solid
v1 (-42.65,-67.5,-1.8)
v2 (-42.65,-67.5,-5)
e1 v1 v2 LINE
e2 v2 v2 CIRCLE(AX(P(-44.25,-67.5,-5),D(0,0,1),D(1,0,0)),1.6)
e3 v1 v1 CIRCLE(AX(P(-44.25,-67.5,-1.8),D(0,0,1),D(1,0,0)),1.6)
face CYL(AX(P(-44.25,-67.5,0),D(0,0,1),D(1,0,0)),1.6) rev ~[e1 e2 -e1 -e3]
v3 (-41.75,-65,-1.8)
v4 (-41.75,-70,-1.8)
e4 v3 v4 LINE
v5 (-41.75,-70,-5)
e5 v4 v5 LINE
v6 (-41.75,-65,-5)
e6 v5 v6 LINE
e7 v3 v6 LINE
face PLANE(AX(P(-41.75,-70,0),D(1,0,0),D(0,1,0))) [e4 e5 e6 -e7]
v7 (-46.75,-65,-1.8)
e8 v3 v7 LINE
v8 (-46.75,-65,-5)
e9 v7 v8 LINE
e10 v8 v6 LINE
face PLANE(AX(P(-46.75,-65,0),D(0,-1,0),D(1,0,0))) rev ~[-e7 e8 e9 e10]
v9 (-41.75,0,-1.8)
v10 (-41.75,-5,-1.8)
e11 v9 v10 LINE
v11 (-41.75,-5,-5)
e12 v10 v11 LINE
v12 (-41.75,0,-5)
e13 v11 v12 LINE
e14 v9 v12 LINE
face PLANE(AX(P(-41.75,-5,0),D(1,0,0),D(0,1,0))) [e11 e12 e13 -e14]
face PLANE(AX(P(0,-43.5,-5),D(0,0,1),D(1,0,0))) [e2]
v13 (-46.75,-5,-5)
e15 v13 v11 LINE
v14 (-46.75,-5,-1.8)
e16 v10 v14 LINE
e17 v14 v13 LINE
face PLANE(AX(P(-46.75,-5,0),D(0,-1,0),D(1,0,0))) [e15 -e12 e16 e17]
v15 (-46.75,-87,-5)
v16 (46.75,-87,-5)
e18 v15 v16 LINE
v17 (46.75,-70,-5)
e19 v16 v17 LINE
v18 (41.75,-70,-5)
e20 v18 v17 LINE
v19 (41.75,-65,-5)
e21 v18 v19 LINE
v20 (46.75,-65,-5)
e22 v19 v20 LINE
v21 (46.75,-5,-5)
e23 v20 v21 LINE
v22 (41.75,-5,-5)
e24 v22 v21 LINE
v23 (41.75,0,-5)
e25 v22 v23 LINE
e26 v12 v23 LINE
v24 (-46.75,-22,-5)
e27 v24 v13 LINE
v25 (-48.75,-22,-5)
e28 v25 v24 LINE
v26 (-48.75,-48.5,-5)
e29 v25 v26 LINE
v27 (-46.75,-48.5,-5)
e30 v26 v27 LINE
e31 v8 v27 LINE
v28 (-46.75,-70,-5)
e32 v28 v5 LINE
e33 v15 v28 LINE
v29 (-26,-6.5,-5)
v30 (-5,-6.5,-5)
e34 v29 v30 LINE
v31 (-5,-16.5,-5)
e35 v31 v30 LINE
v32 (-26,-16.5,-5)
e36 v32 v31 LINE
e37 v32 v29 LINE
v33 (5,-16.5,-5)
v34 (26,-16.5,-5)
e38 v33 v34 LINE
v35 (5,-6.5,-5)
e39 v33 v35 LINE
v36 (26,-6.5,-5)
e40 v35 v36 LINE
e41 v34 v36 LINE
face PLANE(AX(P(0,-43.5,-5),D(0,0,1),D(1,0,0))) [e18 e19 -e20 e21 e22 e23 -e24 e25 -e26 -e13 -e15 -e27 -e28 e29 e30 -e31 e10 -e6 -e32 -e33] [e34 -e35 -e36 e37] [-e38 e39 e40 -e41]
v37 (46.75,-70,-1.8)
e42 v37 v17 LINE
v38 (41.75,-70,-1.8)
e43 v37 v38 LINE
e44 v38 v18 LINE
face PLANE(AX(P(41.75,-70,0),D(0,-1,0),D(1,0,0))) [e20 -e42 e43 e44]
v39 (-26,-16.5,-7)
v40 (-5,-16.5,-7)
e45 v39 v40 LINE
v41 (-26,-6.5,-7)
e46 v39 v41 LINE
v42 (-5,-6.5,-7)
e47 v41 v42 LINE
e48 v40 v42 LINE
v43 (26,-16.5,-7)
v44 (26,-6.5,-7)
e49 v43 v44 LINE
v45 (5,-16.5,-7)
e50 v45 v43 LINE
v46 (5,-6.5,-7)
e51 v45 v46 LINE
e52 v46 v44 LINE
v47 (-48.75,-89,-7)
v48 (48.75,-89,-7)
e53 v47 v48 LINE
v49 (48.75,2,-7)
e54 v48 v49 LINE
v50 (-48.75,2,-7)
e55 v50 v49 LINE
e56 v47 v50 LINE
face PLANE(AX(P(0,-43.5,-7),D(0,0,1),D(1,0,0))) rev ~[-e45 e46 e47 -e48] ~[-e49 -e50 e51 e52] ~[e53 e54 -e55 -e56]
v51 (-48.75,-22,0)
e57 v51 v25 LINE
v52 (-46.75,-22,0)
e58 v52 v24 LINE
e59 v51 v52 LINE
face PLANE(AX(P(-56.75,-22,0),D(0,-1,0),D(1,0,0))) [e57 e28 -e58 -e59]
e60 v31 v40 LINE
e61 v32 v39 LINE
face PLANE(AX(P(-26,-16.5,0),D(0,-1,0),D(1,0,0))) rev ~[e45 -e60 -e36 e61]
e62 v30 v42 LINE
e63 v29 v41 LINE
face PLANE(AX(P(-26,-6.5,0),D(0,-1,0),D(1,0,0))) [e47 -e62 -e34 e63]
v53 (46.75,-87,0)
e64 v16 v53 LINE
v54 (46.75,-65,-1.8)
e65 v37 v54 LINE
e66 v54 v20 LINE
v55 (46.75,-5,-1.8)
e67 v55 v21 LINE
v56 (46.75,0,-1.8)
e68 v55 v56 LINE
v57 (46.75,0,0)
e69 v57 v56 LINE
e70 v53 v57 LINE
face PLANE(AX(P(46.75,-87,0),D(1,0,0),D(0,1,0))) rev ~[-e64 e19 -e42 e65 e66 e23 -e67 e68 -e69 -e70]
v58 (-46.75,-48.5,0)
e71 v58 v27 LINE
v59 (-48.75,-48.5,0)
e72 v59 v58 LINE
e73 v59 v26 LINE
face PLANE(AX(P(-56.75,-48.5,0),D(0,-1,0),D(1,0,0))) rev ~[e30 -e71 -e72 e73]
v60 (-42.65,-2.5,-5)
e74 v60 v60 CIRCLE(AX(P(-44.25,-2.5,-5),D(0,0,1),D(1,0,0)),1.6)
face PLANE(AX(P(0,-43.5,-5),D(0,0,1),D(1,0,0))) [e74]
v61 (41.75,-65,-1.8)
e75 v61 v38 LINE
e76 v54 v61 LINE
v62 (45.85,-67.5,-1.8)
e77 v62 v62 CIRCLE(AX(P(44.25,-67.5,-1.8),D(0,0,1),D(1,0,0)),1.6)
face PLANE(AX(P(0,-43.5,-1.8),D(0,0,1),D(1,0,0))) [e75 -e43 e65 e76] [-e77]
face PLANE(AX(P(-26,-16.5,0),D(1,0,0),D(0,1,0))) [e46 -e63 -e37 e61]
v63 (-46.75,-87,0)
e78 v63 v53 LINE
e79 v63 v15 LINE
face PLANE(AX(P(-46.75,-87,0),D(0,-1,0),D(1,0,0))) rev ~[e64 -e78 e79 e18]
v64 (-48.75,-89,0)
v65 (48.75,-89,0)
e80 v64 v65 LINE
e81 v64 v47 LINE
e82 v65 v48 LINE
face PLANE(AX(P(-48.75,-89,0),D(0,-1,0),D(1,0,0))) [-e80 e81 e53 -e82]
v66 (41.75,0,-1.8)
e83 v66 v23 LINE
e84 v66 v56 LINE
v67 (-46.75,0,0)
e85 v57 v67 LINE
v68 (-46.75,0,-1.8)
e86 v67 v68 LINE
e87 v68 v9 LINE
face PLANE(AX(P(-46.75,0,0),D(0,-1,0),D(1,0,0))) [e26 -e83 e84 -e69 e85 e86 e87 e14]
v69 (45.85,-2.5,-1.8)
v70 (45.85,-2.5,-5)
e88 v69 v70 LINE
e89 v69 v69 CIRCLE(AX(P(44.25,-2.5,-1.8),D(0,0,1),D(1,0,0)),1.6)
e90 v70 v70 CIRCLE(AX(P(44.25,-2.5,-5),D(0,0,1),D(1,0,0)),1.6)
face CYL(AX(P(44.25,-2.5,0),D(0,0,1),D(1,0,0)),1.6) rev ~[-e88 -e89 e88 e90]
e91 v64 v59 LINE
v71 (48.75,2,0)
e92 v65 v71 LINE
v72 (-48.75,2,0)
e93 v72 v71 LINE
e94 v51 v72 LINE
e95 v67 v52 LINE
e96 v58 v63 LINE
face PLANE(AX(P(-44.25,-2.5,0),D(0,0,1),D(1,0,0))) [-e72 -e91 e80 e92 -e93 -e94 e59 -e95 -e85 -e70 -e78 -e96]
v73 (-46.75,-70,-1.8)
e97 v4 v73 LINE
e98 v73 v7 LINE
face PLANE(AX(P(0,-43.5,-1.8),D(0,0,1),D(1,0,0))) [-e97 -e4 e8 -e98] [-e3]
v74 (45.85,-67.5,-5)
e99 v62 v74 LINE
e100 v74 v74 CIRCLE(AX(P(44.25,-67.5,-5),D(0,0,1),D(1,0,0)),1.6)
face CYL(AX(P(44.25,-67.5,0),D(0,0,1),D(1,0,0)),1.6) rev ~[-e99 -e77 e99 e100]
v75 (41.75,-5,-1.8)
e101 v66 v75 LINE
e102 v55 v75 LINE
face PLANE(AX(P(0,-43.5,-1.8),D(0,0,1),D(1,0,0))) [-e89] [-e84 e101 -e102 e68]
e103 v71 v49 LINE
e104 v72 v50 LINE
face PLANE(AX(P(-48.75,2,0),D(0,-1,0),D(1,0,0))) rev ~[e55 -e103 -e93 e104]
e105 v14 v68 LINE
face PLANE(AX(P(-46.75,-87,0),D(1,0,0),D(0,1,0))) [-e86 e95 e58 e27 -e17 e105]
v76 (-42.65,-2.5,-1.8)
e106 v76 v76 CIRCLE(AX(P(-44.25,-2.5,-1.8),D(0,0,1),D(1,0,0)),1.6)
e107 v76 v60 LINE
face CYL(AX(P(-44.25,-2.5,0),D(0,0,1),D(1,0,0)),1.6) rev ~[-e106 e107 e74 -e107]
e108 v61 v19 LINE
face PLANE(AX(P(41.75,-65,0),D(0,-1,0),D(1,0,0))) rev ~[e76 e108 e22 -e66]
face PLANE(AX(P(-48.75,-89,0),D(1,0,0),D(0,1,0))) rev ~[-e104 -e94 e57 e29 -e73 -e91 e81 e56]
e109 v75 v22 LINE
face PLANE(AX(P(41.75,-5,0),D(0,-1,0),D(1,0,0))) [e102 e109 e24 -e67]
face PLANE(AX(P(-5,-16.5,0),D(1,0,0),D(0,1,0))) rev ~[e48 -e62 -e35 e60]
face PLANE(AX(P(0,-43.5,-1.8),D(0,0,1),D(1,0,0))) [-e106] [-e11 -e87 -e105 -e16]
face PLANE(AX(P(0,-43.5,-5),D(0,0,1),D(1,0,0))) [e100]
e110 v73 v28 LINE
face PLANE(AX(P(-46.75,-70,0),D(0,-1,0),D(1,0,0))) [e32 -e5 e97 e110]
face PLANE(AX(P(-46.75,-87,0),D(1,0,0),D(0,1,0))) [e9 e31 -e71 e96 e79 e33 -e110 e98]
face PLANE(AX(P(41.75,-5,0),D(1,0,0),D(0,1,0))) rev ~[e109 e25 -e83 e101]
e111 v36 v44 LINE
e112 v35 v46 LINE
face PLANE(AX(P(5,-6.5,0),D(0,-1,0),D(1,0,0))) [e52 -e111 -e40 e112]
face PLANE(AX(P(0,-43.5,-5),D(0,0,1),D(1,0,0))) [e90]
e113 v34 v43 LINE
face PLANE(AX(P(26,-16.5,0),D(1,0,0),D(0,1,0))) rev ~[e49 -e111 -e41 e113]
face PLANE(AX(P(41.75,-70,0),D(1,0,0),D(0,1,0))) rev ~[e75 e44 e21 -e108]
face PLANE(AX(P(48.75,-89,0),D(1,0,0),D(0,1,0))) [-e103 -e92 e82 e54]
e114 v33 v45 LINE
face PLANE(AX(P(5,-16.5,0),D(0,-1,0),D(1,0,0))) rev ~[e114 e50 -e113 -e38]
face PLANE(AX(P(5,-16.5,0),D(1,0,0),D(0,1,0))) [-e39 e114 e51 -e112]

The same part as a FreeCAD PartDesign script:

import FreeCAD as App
import Part
import Sketcher

V = App.Vector
Q = App.Units.Quantity

doc = App.newDocument("Part")
body = doc.addObject("PartDesign::Body", "Body")

# Sketch on XY plane
sketch1 = body.newObject("Sketcher::SketchObject", "Sketch")
sketch1.AttachmentSupport = (doc.getObject("XY_Plane"), [""])
sketch1.MapMode = "FlatFace"
sketch1.addGeometry(Part.LineSegment(V(-49, 2, 0), V(-49, -89, 0)), False)
sketch1.addGeometry(Part.LineSegment(V(-49, -89, 0), V(49, -89, 0)), False)
sketch1.addGeometry(Part.LineSegment(V(49, -89, 0), V(49, 2, 0)), False)
sketch1.addGeometry(Part.LineSegment(V(49, 2, 0), V(-49, 2, 0)), False)
sketch1.addConstraint(Sketcher.Constraint("Coincident", 0, 2, 1, 1))
sketch1.addConstraint(Sketcher.Constraint("Coincident", 1, 2, 2, 1))
sketch1.addConstraint(Sketcher.Constraint("Coincident", 2, 2, 3, 1))
sketch1.addConstraint(Sketcher.Constraint("Coincident", 3, 2, 0, 1))
sketch1.addConstraint(Sketcher.Constraint("Vertical", 0))
sketch1.addConstraint(Sketcher.Constraint("Horizontal", 1))
sketch1.addConstraint(Sketcher.Constraint("Vertical", 2))
sketch1.addConstraint(Sketcher.Constraint("Horizontal", 3))
sketch1.addConstraint(Sketcher.Constraint("DistanceY", 0, 2, 0, 1, Q("91 mm")))
sketch1.addConstraint(Sketcher.Constraint("DistanceX", 1, 1, 1, 2, Q("97.5 mm")))
sketch1.addConstraint(Sketcher.Constraint("DistanceY", 0, 2, -1, 1, Q("89 mm")))
sketch1.addConstraint(Sketcher.Constraint("DistanceX", 0, 2, -1, 1, Q("48.75 mm")))
pad1 = body.newObject("PartDesign::Pad", "Pad")
pad1.Profile = sketch1
pad1.Length = 7
pad1.Reversed = True

# Sketch on XY plane
sketch2 = body.newObject("Sketcher::SketchObject", "Sketch001")
sketch2.AttachmentSupport = (doc.getObject("XY_Plane"), [""])
sketch2.MapMode = "FlatFace"
sketch2.addGeometry(Part.LineSegment(V(-47, 0, 0), V(-47, -87, 0)), False)
sketch2.addGeometry(Part.LineSegment(V(-47, -87, 0), V(47, -87, 0)), False)
sketch2.addGeometry(Part.LineSegment(V(47, -87, 0), V(47, 0, 0)), False)
sketch2.addGeometry(Part.LineSegment(V(47, 0, 0), V(-47, 0, 0)), False)
sketch2.addConstraint(Sketcher.Constraint("Coincident", 0, 2, 1, 1))
sketch2.addConstraint(Sketcher.Constraint("Coincident", 1, 2, 2, 1))
sketch2.addConstraint(Sketcher.Constraint("Coincident", 2, 2, 3, 1))
sketch2.addConstraint(Sketcher.Constraint("Coincident", 3, 2, 0, 1))
sketch2.addConstraint(Sketcher.Constraint("Vertical", 0))
sketch2.addConstraint(Sketcher.Constraint("Horizontal", 1))
sketch2.addConstraint(Sketcher.Constraint("Vertical", 2))
sketch2.addConstraint(Sketcher.Constraint("Horizontal", 3))
sketch2.addConstraint(Sketcher.Constraint("Symmetric", 2, 2, 3, 2, -1, 1))
sketch2.addConstraint(Sketcher.Constraint("DistanceY", 0, 2, 0, 1, Q("87 mm")))
sketch2.addConstraint(Sketcher.Constraint("DistanceX", 1, 1, 1, 2, Q("93.5 mm")))
pocket1 = body.newObject("PartDesign::Pocket", "Pocket")
pocket1.Profile = sketch2
pocket1.Length = 5

# Sketch on XY plane
sketch3 = body.newObject("Sketcher::SketchObject", "Sketch002")
sketch3.AttachmentSupport = (doc.getObject("XY_Plane"), [""])
sketch3.MapMode = "FlatFace"
sketch3.addGeometry(Part.LineSegment(V(-46.8, 0, 0), V(-46.8, -5, 0)), False)
sketch3.addGeometry(Part.LineSegment(V(-46.8, -5, 0), V(-41.8, -5, 0)), False)
sketch3.addGeometry(Part.LineSegment(V(-41.8, -5, 0), V(-41.8, 0, 0)), False)
sketch3.addGeometry(Part.LineSegment(V(-41.8, 0, 0), V(-46.8, 0, 0)), False)
sketch3.addGeometry(Part.Circle(V(-44.2, -2.5, 0), V(0, 0, 1), 1.6), False)
sketch3.addGeometry(Part.LineSegment(V(-46.8, -65, 0), V(-46.8, -70, 0)), False)
sketch3.addGeometry(Part.LineSegment(V(-46.8, -70, 0), V(-41.8, -70, 0)), False)
sketch3.addGeometry(Part.LineSegment(V(-41.8, -70, 0), V(-41.8, -65, 0)), False)
sketch3.addGeometry(Part.LineSegment(V(-41.8, -65, 0), V(-46.8, -65, 0)), False)
sketch3.addGeometry(Part.Circle(V(-44.2, -67.5, 0), V(0, 0, 1), 1.6), False)
sketch3.addGeometry(Part.LineSegment(V(41.8, -65, 0), V(41.8, -70, 0)), False)
sketch3.addGeometry(Part.LineSegment(V(41.8, -70, 0), V(46.8, -70, 0)), False)
sketch3.addGeometry(Part.LineSegment(V(46.8, -70, 0), V(46.8, -65, 0)), False)
sketch3.addGeometry(Part.LineSegment(V(46.8, -65, 0), V(41.8, -65, 0)), False)
sketch3.addGeometry(Part.Circle(V(44.2, -67.5, 0), V(0, 0, 1), 1.6), False)
sketch3.addGeometry(Part.LineSegment(V(41.8, 0, 0), V(41.8, -5, 0)), False)
sketch3.addGeometry(Part.LineSegment(V(41.8, -5, 0), V(46.8, -5, 0)), False)
sketch3.addGeometry(Part.LineSegment(V(46.8, -5, 0), V(46.8, 0, 0)), False)
sketch3.addGeometry(Part.LineSegment(V(46.8, 0, 0), V(41.8, 0, 0)), False)
sketch3.addGeometry(Part.Circle(V(44.2, -2.5, 0), V(0, 0, 1), 1.6), False)
sketch3.addConstraint(Sketcher.Constraint("Coincident", 0, 2, 1, 1))
sketch3.addConstraint(Sketcher.Constraint("Coincident", 1, 2, 2, 1))
sketch3.addConstraint(Sketcher.Constraint("Coincident", 2, 2, 3, 1))
sketch3.addConstraint(Sketcher.Constraint("Coincident", 3, 2, 0, 1))
sketch3.addConstraint(Sketcher.Constraint("Coincident", 5, 2, 6, 1))
sketch3.addConstraint(Sketcher.Constraint("Coincident", 6, 2, 7, 1))
sketch3.addConstraint(Sketcher.Constraint("Coincident", 7, 2, 8, 1))
sketch3.addConstraint(Sketcher.Constraint("Coincident", 8, 2, 5, 1))
sketch3.addConstraint(Sketcher.Constraint("Coincident", 10, 2, 11, 1))
sketch3.addConstraint(Sketcher.Constraint("Coincident", 11, 2, 12, 1))
sketch3.addConstraint(Sketcher.Constraint("Coincident", 12, 2, 13, 1))
sketch3.addConstraint(Sketcher.Constraint("Coincident", 13, 2, 10, 1))
sketch3.addConstraint(Sketcher.Constraint("Coincident", 15, 2, 16, 1))
sketch3.addConstraint(Sketcher.Constraint("Coincident", 16, 2, 17, 1))
sketch3.addConstraint(Sketcher.Constraint("Coincident", 17, 2, 18, 1))
sketch3.addConstraint(Sketcher.Constraint("Coincident", 18, 2, 15, 1))
sketch3.addConstraint(Sketcher.Constraint("Vertical", 0))
sketch3.addConstraint(Sketcher.Constraint("Horizontal", 1))
sketch3.addConstraint(Sketcher.Constraint("Vertical", 2))
sketch3.addConstraint(Sketcher.Constraint("Horizontal", 3))
sketch3.addConstraint(Sketcher.Constraint("Vertical", 5))
sketch3.addConstraint(Sketcher.Constraint("Horizontal", 6))
sketch3.addConstraint(Sketcher.Constraint("Vertical", 7))
sketch3.addConstraint(Sketcher.Constraint("Horizontal", 8))
sketch3.addConstraint(Sketcher.Constraint("Vertical", 10))
sketch3.addConstraint(Sketcher.Constraint("Horizontal", 11))
sketch3.addConstraint(Sketcher.Constraint("Vertical", 12))
sketch3.addConstraint(Sketcher.Constraint("Horizontal", 13))
sketch3.addConstraint(Sketcher.Constraint("Vertical", 15))
sketch3.addConstraint(Sketcher.Constraint("Horizontal", 16))
sketch3.addConstraint(Sketcher.Constraint("Vertical", 17))
sketch3.addConstraint(Sketcher.Constraint("Horizontal", 18))
sketch3.addConstraint(Sketcher.Constraint("Equal", 4, 9))
sketch3.addConstraint(Sketcher.Constraint("Equal", 9, 14))
sketch3.addConstraint(Sketcher.Constraint("Equal", 14, 19))
sketch3.addConstraint(Sketcher.Constraint("Symmetric", 3, 2, 17, 2, -1, 1))
sketch3.addConstraint(Sketcher.Constraint("Symmetric", 9, 3, 14, 3, -2))
sketch3.addConstraint(Sketcher.Constraint("Symmetric", 4, 3, 19, 3, -2))
sketch3.addConstraint(Sketcher.Constraint("Symmetric", 6, 2, 10, 2, -2))
sketch3.addConstraint(Sketcher.Constraint("Symmetric", 8, 2, 12, 2, -2))
sketch3.addConstraint(Sketcher.Constraint("Symmetric", 1, 2, 15, 2, -2))
sketch3.addConstraint(Sketcher.Constraint("PointOnObject", 2, 2, -1))
sketch3.addConstraint(Sketcher.Constraint("Vertical", 4, 3, 9, 3))
sketch3.addConstraint(Sketcher.Constraint("Vertical", 3, 2, 5, 2))
sketch3.addConstraint(Sketcher.Constraint("Vertical", 2, 2, 6, 2))
sketch3.addConstraint(Sketcher.Constraint("Equal", 18, 0))
sketch3.addConstraint(Sketcher.Constraint("Equal", 2, 5))
sketch3.addConstraint(Sketcher.Constraint("Diameter", 4, Q("3.2 mm")))
sketch3.addConstraint(Sketcher.Constraint("DistanceX", 1, 1, 1, 2, Q("5 mm")))
sketch3.addConstraint(Sketcher.Constraint("DistanceY", 5, 2, -1, 1, Q("70 mm")))
sketch3.addConstraint(Sketcher.Constraint("DistanceY", 9, 3, 4, 3, Q("65 mm")))
sketch3.addConstraint(Sketcher.Constraint("DistanceX", 0, 2, 19, 3, Q("91 mm")))
sketch3.addConstraint(Sketcher.Constraint("DistanceY", 4, 3, -1, 1, Q("2.5 mm")))
sketch3.addConstraint(Sketcher.Constraint("DistanceX", 9, 3, 14, 3, Q("88.5 mm")))
pad2 = body.newObject("PartDesign::Pad", "Pad001")
pad2.Profile = sketch3
pad2.Length = 5
pad2.Reversed = True

# Sketch on XY plane
sketch4 = body.newObject("Sketcher::SketchObject", "Sketch003")
sketch4.AttachmentSupport = (doc.getObject("XY_Plane"), [""])
sketch4.MapMode = "FlatFace"
sketch4.addGeometry(Part.LineSegment(V(-47, 0, 0), V(-47, -87, 0)), False)
sketch4.addGeometry(Part.LineSegment(V(-47, -87, 0), V(47, -87, 0)), False)
sketch4.addGeometry(Part.LineSegment(V(47, -87, 0), V(47, 0, 0)), False)
sketch4.addGeometry(Part.LineSegment(V(47, 0, 0), V(-47, 0, 0)), False)
sketch4.addConstraint(Sketcher.Constraint("Coincident", 0, 2, 1, 1))
sketch4.addConstraint(Sketcher.Constraint("Coincident", 1, 2, 2, 1))
sketch4.addConstraint(Sketcher.Constraint("Coincident", 2, 2, 3, 1))
sketch4.addConstraint(Sketcher.Constraint("Coincident", 3, 2, 0, 1))
sketch4.addConstraint(Sketcher.Constraint("Vertical", 0))
sketch4.addConstraint(Sketcher.Constraint("Horizontal", 1))
sketch4.addConstraint(Sketcher.Constraint("Vertical", 2))
sketch4.addConstraint(Sketcher.Constraint("Horizontal", 3))
sketch4.addConstraint(Sketcher.Constraint("Symmetric", 2, 2, 3, 2, -1, 1))
sketch4.addConstraint(Sketcher.Constraint("DistanceY", 0, 2, 0, 1, Q("87 mm")))
sketch4.addConstraint(Sketcher.Constraint("DistanceX", 1, 1, 1, 2, Q("93.5 mm")))
pocket2 = body.newObject("PartDesign::Pocket", "Pocket001")
pocket2.Profile = sketch4
pocket2.Length = 1.8

# Sketch on XY plane
sketch5 = body.newObject("Sketcher::SketchObject", "Sketch004")
sketch5.AttachmentSupport = (doc.getObject("XY_Plane"), [""])
sketch5.MapMode = "FlatFace"
sketch5.addGeometry(Part.LineSegment(V(-57, -22, 0), V(-57, -48, 0)), False)
sketch5.addGeometry(Part.LineSegment(V(-57, -48, 0), V(-47, -48, 0)), False)
sketch5.addGeometry(Part.LineSegment(V(-47, -48, 0), V(-47, -22, 0)), False)
sketch5.addGeometry(Part.LineSegment(V(-47, -22, 0), V(-57, -22, 0)), False)
sketch5.addConstraint(Sketcher.Constraint("Coincident", 0, 2, 1, 1))
sketch5.addConstraint(Sketcher.Constraint("Coincident", 1, 2, 2, 1))
sketch5.addConstraint(Sketcher.Constraint("Coincident", 2, 2, 3, 1))
sketch5.addConstraint(Sketcher.Constraint("Coincident", 3, 2, 0, 1))
sketch5.addConstraint(Sketcher.Constraint("Vertical", 0))
sketch5.addConstraint(Sketcher.Constraint("Horizontal", 1))
sketch5.addConstraint(Sketcher.Constraint("Vertical", 2))
sketch5.addConstraint(Sketcher.Constraint("Horizontal", 3))
sketch5.addConstraint(Sketcher.Constraint("DistanceX", 1, 1, 1, 2, Q("10 mm")))
sketch5.addConstraint(Sketcher.Constraint("DistanceY", 0, 2, 0, 1, Q("26.5 mm")))
sketch5.addConstraint(Sketcher.Constraint("DistanceY", 2, 2, -1, 1, Q("22 mm")))
sketch5.addConstraint(Sketcher.Constraint("DistanceX", 0, 2, -1, 1, Q("56.75 mm")))
pocket3 = body.newObject("PartDesign::Pocket", "Pocket002")
pocket3.Profile = sketch5
pocket3.Length = 5

# Sketch on XY plane
sketch6 = body.newObject("Sketcher::SketchObject", "Sketch005")
sketch6.AttachmentSupport = (doc.getObject("XY_Plane"), [""])
sketch6.MapMode = "FlatFace"
sketch6.addGeometry(Part.LineSegment(V(-26, -6, 0), V(-26, -16, 0)), False)
sketch6.addGeometry(Part.LineSegment(V(-26, -16, 0), V(-5, -16, 0)), False)
sketch6.addGeometry(Part.LineSegment(V(-5, -16, 0), V(-5, -6, 0)), False)
sketch6.addGeometry(Part.LineSegment(V(-5, -6, 0), V(-26, -6, 0)), False)
sketch6.addGeometry(Part.LineSegment(V(5, -6, 0), V(5, -16, 0)), False)
sketch6.addGeometry(Part.LineSegment(V(5, -16, 0), V(26, -16, 0)), False)
sketch6.addGeometry(Part.LineSegment(V(26, -16, 0), V(26, -6, 0)), False)
sketch6.addGeometry(Part.LineSegment(V(26, -6, 0), V(5, -6, 0)), False)
sketch6.addConstraint(Sketcher.Constraint("Coincident", 0, 2, 1, 1))
sketch6.addConstraint(Sketcher.Constraint("Coincident", 1, 2, 2, 1))
sketch6.addConstraint(Sketcher.Constraint("Coincident", 2, 2, 3, 1))
sketch6.addConstraint(Sketcher.Constraint("Coincident", 3, 2, 0, 1))
sketch6.addConstraint(Sketcher.Constraint("Coincident", 4, 2, 5, 1))
sketch6.addConstraint(Sketcher.Constraint("Coincident", 5, 2, 6, 1))
sketch6.addConstraint(Sketcher.Constraint("Coincident", 6, 2, 7, 1))
sketch6.addConstraint(Sketcher.Constraint("Coincident", 7, 2, 4, 1))
sketch6.addConstraint(Sketcher.Constraint("Vertical", 0))
sketch6.addConstraint(Sketcher.Constraint("Horizontal", 1))
sketch6.addConstraint(Sketcher.Constraint("Vertical", 2))
sketch6.addConstraint(Sketcher.Constraint("Horizontal", 3))
sketch6.addConstraint(Sketcher.Constraint("Vertical", 4))
sketch6.addConstraint(Sketcher.Constraint("Horizontal", 5))
sketch6.addConstraint(Sketcher.Constraint("Vertical", 6))
sketch6.addConstraint(Sketcher.Constraint("Horizontal", 7))
sketch6.addConstraint(Sketcher.Constraint("Symmetric", 1, 2, 4, 2, -2))
sketch6.addConstraint(Sketcher.Constraint("Symmetric", 3, 2, 6, 2, -2))
sketch6.addConstraint(Sketcher.Constraint("DistanceX", 1, 1, 1, 2, Q("21 mm")))
sketch6.addConstraint(Sketcher.Constraint("DistanceY", 0, 2, 0, 1, Q("10 mm")))
sketch6.addConstraint(Sketcher.Constraint("DistanceX", 0, 2, -1, 1, Q("26 mm")))
sketch6.addConstraint(Sketcher.Constraint("DistanceY", 0, 2, -1, 1, Q("16.5 mm")))
pocket4 = body.newObject("PartDesign::Pocket", "Pocket003")
pocket4.Profile = sketch6
pocket4.Type = "ThroughAll"

doc.recompute()
